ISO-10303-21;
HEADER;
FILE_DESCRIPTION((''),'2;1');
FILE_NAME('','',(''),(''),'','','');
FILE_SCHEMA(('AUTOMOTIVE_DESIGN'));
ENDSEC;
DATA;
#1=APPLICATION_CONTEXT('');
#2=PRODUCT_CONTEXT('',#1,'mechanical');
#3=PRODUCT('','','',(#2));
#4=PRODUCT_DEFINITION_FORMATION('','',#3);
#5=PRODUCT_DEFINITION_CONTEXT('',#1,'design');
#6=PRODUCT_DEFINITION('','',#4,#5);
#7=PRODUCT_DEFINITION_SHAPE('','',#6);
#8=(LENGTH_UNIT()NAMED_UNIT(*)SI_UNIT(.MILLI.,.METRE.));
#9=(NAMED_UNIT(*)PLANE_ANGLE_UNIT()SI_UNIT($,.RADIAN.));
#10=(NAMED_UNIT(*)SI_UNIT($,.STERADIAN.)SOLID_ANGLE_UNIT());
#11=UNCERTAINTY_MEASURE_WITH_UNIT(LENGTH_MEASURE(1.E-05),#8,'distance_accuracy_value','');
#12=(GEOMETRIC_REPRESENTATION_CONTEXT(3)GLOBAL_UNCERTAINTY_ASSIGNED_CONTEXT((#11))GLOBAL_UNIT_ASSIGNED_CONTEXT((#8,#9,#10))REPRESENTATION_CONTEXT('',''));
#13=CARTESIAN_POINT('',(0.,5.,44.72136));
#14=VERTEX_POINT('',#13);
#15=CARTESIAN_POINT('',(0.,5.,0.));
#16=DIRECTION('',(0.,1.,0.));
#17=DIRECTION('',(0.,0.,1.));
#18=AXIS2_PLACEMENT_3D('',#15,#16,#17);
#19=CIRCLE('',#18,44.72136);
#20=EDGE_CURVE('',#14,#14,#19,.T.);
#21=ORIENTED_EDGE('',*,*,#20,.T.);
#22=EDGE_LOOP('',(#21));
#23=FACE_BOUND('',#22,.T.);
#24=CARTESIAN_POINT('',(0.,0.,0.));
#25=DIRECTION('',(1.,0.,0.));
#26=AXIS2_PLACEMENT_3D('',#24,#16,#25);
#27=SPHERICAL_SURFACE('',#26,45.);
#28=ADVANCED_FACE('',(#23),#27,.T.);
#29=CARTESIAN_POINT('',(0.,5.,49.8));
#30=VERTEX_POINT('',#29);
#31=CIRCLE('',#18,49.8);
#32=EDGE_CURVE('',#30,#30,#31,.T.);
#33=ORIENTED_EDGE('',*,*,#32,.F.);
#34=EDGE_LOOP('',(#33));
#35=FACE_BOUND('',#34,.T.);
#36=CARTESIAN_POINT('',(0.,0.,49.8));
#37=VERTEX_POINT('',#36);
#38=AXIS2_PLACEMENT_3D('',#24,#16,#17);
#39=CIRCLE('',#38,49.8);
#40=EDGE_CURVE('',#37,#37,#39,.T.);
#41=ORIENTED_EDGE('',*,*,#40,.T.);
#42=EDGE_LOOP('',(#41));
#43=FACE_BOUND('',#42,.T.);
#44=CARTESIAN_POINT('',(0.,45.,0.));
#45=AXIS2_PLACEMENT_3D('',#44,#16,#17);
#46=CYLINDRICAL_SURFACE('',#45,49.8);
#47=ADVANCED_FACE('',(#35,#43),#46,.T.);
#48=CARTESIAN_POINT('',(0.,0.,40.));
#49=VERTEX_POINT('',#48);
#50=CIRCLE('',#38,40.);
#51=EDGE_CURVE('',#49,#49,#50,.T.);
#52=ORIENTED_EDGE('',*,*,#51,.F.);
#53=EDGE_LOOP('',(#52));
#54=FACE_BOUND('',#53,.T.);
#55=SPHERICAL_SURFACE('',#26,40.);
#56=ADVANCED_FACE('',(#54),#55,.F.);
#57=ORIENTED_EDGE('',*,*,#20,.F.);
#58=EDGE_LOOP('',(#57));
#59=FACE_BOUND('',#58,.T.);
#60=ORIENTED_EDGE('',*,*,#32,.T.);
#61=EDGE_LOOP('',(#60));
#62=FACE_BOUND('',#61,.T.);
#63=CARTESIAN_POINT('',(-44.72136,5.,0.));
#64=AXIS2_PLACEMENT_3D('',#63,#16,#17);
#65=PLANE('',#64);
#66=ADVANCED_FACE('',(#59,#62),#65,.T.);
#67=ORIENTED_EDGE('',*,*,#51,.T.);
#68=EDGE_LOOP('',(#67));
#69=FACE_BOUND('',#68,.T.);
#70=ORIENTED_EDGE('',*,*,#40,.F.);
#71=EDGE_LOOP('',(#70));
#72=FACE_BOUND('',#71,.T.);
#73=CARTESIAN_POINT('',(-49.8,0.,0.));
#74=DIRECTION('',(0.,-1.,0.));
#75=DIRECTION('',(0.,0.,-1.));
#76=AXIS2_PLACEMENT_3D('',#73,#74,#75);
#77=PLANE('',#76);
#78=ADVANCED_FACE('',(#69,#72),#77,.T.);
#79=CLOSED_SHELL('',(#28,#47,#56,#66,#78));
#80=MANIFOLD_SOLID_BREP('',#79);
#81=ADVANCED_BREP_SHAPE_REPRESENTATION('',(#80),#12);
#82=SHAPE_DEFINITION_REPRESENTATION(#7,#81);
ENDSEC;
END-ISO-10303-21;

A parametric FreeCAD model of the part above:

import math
import FreeCAD as App
import Part
import Sketcher

doc = App.newDocument("Part")
params = doc.addObject("Spreadsheet::Sheet", "Params")
for row, (alias, value) in enumerate([
    ("sketch1_radius", "40 mm"),
    ("sketch1_radius2", "45 mm"),
    ("sketch1_width", "9.8 mm"),
    ("revolution_angle", "360 deg"),
], start=1):
    params.set(f"A{row}", alias)
    params.set(f"B{row}", "=" + value)
    params.setAlias(f"B{row}", alias)

body = doc.addObject("PartDesign::Body", "Body")

# Sketch on XY plane
sketch1 = body.newObject("Sketcher::SketchObject", "Sketch")
sketch1.AttachmentSupport = (doc.getObject("XY_Plane"), [""])
sketch1.MapMode = "FlatFace"
sketch1.addGeometry([
    Part.LineSegment(App.Vector(-50, 0, 0), App.Vector(-40, 0, 0)),  # 0
    Part.ArcOfCircle(Part.Circle(App.Vector(0, 0, 0), App.Vector(0, 0, 1), 40), math.radians(90), math.radians(180)),  # 1
    Part.LineSegment(App.Vector(0, 40, 0), App.Vector(0, 45, 0)),  # 2
    Part.ArcOfCircle(Part.Circle(App.Vector(0, 0, 0), App.Vector(0, 0, 1), 45), math.radians(90), math.radians(174)),  # 3
    Part.LineSegment(App.Vector(-45, 5, 0), App.Vector(-50, 5, 0)),  # 4
    Part.LineSegment(App.Vector(-50, 5, 0), App.Vector(-50, 0, 0)),  # 5
], False)
sketch1.addConstraint([
    Sketcher.Constraint("Coincident", 0, 2, 1, 2),
    Sketcher.Constraint("Coincident", 1, 1, 2, 1),
    Sketcher.Constraint("Coincident", 2, 2, 3, 1),
    Sketcher.Constraint("Coincident", 3, 2, 4, 1),
    Sketcher.Constraint("Coincident", 4, 2, 5, 1),
    Sketcher.Constraint("Coincident", 5, 2, 0, 1),
    Sketcher.Constraint("Horizontal", 0),
    Sketcher.Constraint("Vertical", 2),
    Sketcher.Constraint("Horizontal", 4),
    Sketcher.Constraint("Vertical", 5),
    Sketcher.Constraint("Coincident", 1, 3, -1, 1),
    Sketcher.Constraint("Coincident", 3, 3, -1, 1),
    Sketcher.Constraint("PointOnObject", 0, 2, -1),
    Sketcher.Constraint("PointOnObject", 1, 1, -2),
    Sketcher.Constraint("Equal", 2, 5),
    Sketcher.Constraint("Radius", 1, 40.0),
    Sketcher.Constraint("Radius", 3, 45.0),
    Sketcher.Constraint("DistanceX", 0, 1, 0, 2, 9.8),
])
sketch1.setExpression("Constraints[15]", "Params.sketch1_radius")
sketch1.setExpression("Constraints[16]", "Params.sketch1_radius2")
sketch1.setExpression("Constraints[17]", "Params.sketch1_width")
revolution = body.newObject("PartDesign::Revolution", "Revolution")
revolution.Profile = sketch1
revolution.ReferenceAxis = (sketch1, ["V_Axis"])
revolution.setExpression("Angle", "Params.revolution_angle")

doc.recompute()
